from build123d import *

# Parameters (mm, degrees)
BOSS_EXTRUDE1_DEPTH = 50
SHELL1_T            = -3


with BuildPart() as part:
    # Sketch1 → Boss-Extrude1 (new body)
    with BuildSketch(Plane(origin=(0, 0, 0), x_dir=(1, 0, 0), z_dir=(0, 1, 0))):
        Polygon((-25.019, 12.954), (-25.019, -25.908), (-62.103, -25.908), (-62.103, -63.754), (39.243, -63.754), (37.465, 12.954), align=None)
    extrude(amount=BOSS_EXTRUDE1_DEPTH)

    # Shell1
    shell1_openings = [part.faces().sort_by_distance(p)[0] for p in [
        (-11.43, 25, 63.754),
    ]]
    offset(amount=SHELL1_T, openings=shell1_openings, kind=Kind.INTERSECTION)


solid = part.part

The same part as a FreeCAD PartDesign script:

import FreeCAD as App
import Part
import Sketcher

V = App.Vector
Q = App.Units.Quantity


def faces_at(feature, points):
    """Names of the faces that lie closest to the given points."""
    faces = feature.Shape.Faces
    near = lambda p: min(range(len(faces)), key=lambda i: faces[i].distToShape(Part.Vertex(*p))[0])
    return sorted({f"Face{near(p) + 1}" for p in points})


def add_polygon(sketch, points):
    """Adds a closed chain of lines whose ends are joined by coincident constraints."""
    first, n = sketch.GeometryCount, len(points)
    for a, b in zip(points, points[1:] + points[:1]):
        sketch.addGeometry(Part.LineSegment(App.Vector(*a, 0), App.Vector(*b, 0)), False)
    for i in range(n):
        sketch.addConstraint(Sketcher.Constraint("Coincident", first + i, 2, first + (i + 1) % n, 1))

doc = App.newDocument("Part")
body = doc.addObject("PartDesign::Body", "Body")

sketch1 = doc.addObject("Sketcher::SketchObject", "Sketch")
body.addObject(sketch1)
sketch1.AttachmentSupport = (doc.XZ_Plane, [""])
sketch1.MapMode = "FlatFace"
add_polygon(sketch1, [(-25, -13), (-25, 26), (-62, 26), (-62, 64), (39, 64), (37, -13)])
sketch1.addConstraint(Sketcher.Constraint("Vertical", 0))
sketch1.addConstraint(Sketcher.Constraint("Horizontal", 1))
sketch1.addConstraint(Sketcher.Constraint("Vertical", 2))
sketch1.addConstraint(Sketcher.Constraint("Horizontal", 3))
sketch1.addConstraint(Sketcher.Constraint("Horizontal", 5))
sketch1.addConstraint(Sketcher.Constraint("DistanceX", 1, 2, 1, 1, Q("1.46 in")))
sketch1.addConstraint(Sketcher.Constraint("DistanceX", 3, 1, 3, 2, Q("3.99 in")))
sketch1.addConstraint(Sketcher.Constraint("DistanceX", 5, 2, 5, 1, Q("2.46 in")))
sketch1.addConstraint(Sketcher.Constraint("DistanceY", 0, 1, 0, 2, Q("1.53 in")))
sketch1.addConstraint(Sketcher.Constraint("DistanceY", 2, 1, 2, 2, Q("1.49 in")))
sketch1.addConstraint(Sketcher.Constraint("DistanceY", -1, 1, 0, 2, Q("1.02 in")))
sketch1.addConstraint(Sketcher.Constraint("DistanceX", 0, 2, -1, 1, Q("0.985 in")))
pad1 = doc.addObject("PartDesign::Pad", "Pad")
body.addObject(pad1)
pad1.Profile = sketch1
pad1.Length = 50
pad1.Reversed = True
doc.recompute()

thickness = doc.addObject("PartDesign::Thickness", "Thickness")
body.addObject(thickness)
thickness.Base = (pad1, faces_at(pad1, [(-11.43, 25, 63.754)]))
thickness.Value = 3
thickness.Reversed = True
thickness.Join = "Intersection"

doc.recompute()
